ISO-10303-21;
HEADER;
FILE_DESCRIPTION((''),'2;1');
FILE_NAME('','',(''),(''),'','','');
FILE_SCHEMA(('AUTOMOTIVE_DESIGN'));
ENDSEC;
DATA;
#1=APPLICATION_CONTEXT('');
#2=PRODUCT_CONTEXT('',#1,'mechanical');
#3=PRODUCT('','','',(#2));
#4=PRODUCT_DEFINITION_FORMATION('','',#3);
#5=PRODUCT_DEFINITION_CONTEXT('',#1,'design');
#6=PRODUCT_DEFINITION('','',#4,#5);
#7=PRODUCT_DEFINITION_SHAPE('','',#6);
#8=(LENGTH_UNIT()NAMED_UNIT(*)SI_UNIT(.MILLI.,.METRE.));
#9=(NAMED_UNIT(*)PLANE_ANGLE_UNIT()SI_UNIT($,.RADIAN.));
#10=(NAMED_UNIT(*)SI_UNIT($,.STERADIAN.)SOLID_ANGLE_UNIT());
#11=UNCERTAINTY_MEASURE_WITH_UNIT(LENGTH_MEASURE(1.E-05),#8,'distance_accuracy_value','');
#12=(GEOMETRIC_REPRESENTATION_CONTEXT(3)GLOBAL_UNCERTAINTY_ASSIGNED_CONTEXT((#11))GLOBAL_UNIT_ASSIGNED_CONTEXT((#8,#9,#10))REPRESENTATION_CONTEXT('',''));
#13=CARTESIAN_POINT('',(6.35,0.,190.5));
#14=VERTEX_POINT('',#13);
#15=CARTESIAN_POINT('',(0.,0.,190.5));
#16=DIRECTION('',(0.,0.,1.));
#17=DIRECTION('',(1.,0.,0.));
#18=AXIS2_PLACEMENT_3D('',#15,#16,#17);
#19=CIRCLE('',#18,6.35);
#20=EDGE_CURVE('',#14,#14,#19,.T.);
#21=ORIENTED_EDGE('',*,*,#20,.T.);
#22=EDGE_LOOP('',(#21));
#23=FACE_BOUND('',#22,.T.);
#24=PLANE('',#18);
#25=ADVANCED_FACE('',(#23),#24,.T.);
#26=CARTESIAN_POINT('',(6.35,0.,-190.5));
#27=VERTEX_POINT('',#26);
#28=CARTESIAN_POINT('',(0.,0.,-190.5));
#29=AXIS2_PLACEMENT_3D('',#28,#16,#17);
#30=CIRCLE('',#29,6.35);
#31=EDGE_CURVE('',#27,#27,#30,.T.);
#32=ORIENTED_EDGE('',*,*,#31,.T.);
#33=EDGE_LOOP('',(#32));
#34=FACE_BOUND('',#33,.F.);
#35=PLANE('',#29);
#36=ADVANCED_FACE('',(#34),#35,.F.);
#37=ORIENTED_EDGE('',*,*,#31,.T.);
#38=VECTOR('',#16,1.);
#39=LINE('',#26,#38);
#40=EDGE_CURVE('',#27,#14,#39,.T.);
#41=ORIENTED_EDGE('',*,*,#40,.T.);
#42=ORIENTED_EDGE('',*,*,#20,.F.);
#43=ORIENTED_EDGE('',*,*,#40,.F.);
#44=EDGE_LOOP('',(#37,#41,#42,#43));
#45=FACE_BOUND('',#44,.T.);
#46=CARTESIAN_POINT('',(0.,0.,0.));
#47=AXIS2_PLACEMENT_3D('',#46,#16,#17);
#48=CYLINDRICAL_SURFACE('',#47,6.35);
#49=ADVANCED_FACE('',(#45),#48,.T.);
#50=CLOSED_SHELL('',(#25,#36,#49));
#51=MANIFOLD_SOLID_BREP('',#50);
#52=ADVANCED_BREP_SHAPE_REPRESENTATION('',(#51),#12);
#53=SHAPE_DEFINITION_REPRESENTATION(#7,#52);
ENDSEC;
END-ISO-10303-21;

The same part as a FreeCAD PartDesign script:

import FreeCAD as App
import Part
import Sketcher

V = App.Vector
Q = App.Units.Quantity

doc = App.newDocument("Part")
params = doc.addObject("Spreadsheet::Sheet", "Params")
for row, (alias, value) in enumerate([
    ("sketch1_diameter", "0.5 in"),
    ("pad1_length", "15 in"),
], start=1):
    params.set(f"A{row}", alias)
    params.set(f"B{row}", "=" + value)
    params.setAlias(f"B{row}", alias)

body = doc.addObject("PartDesign::Body", "Body")

sketch1 = body.newObject("Sketcher::SketchObject", "Sketch")
sketch1.AttachmentSupport = (doc.getObject("XY_Plane"), [""])
sketch1.MapMode = "FlatFace"
sketch1.addGeometry(Part.Circle(V(0, 0, 0), V(0, 0, 1), 6), False)
sketch1.addConstraint(Sketcher.Constraint("Coincident", 0, 3, -1, 1))
sketch1.addConstraint(Sketcher.Constraint("Diameter", 0, Q("0.5 in")))
sketch1.setExpression("Constraints[1]", "Params.sketch1_diameter")
pad1 = body.newObject("PartDesign::Pad", "Pad")
pad1.Profile = sketch1
pad1.setExpression("Length", "Params.pad1_length")
pad1.Midplane = True

doc.recompute()
